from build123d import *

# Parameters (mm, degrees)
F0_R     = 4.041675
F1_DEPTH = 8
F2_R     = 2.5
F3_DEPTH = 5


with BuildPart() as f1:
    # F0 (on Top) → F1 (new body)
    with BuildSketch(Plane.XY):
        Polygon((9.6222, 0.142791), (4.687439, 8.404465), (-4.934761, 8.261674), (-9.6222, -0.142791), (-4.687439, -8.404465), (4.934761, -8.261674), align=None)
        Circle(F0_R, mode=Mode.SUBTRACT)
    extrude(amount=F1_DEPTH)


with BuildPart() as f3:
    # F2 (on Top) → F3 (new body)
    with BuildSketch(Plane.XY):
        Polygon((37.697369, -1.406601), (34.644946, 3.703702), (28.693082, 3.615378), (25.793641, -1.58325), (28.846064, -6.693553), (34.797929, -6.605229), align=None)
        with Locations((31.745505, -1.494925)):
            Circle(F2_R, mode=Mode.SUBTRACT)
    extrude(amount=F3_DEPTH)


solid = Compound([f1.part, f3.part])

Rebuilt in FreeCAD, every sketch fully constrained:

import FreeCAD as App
import Part
import Sketcher

doc = App.newDocument("Part")
body = doc.addObject("PartDesign::Body", "Body")

sketch1 = doc.addObject("Sketcher::SketchObject", "Sketch")
body.addObject(sketch1)
sketch1.AttachmentSupport = (doc.XY_Plane, [""])
sketch1.MapMode = "FlatFace"
sketch1.addGeometry([
    Part.LineSegment(App.Vector(9.6222, 0.142791, 0), App.Vector(4.687439, 8.404465, 0)),
    Part.LineSegment(App.Vector(4.687439, 8.404465, 0), App.Vector(-4.934761, 8.261674, 0)),
    Part.LineSegment(App.Vector(-4.934761, 8.261674, 0), App.Vector(-9.6222, -0.142791, 0)),
    Part.LineSegment(App.Vector(-9.6222, -0.142791, 0), App.Vector(-4.687439, -8.404465, 0)),
    Part.LineSegment(App.Vector(-4.687439, -8.404465, 0), App.Vector(4.934761, -8.261674, 0)),
    Part.LineSegment(App.Vector(4.934761, -8.261674, 0), App.Vector(9.6222, 0.142791, 0)),
    Part.Circle(App.Vector(0, 0, 0), App.Vector(0, 0, 1), 4.041675),
], False)
sketch1.addConstraint([
    Sketcher.Constraint("Coincident", 0, 2, 1, 1),
    Sketcher.Constraint("Coincident", 1, 2, 2, 1),
    Sketcher.Constraint("Coincident", 2, 2, 3, 1),
    Sketcher.Constraint("Coincident", 3, 2, 4, 1),
    Sketcher.Constraint("Coincident", 4, 2, 5, 1),
    Sketcher.Constraint("Coincident", 5, 2, 0, 1),
    Sketcher.Constraint("Coincident", 6, 3, -1, 1),
    Sketcher.Constraint("Symmetric", 0, 2, 3, 2, -1, 1),
    Sketcher.Constraint("Symmetric", 1, 2, 4, 2, -1, 1),
    Sketcher.Constraint("Symmetric", 2, 2, 5, 2, -1, 1),
    Sketcher.Constraint("Equal", 0, 1),
    Sketcher.Constraint("Equal", 1, 2),
    Sketcher.Constraint("Diameter", 6, 8.08335),
    Sketcher.Constraint("DistanceX", 2, 2, -1, 1, 9.6222),
    Sketcher.Constraint("DistanceX", 1, 2, 0, 2, 9.6222),
    Sketcher.Constraint("Distance", 0, 9.62326),
    Sketcher.Constraint("DistanceX", -1, 1, 0, 2, 4.687439),
])
pad1 = doc.addObject("PartDesign::Pad", "Pad")
body.addObject(pad1)
pad1.Profile = sketch1
pad1.Length = 8
body2 = doc.addObject("PartDesign::Body", "Body001")

sketch2 = doc.addObject("Sketcher::SketchObject", "Sketch001")
body2.addObject(sketch2)
sketch2.AttachmentSupport = (doc.getObject("XY_Plane001"), [""])
sketch2.MapMode = "FlatFace"
sketch2.addGeometry([
    Part.LineSegment(App.Vector(37.697369, -1.406601, 0), App.Vector(34.644946, 3.703702, 0)),
    Part.LineSegment(App.Vector(34.644946, 3.703702, 0), App.Vector(28.693082, 3.615378, 0)),
    Part.LineSegment(App.Vector(28.693082, 3.615378, 0), App.Vector(25.793641, -1.58325, 0)),
    Part.LineSegment(App.Vector(25.793641, -1.58325, 0), App.Vector(28.846064, -6.693553, 0)),
    Part.LineSegment(App.Vector(28.846064, -6.693553, 0), App.Vector(34.797929, -6.605229, 0)),
    Part.LineSegment(App.Vector(34.797929, -6.605229, 0), App.Vector(37.697369, -1.406601, 0)),
    Part.Circle(App.Vector(31.745505, -1.494925, 0), App.Vector(0, 0, 1), 2.5),
], False)
sketch2.addConstraint([
    Sketcher.Constraint("Coincident", 0, 2, 1, 1),
    Sketcher.Constraint("Coincident", 1, 2, 2, 1),
    Sketcher.Constraint("Coincident", 2, 2, 3, 1),
    Sketcher.Constraint("Coincident", 3, 2, 4, 1),
    Sketcher.Constraint("Coincident", 4, 2, 5, 1),
    Sketcher.Constraint("Coincident", 5, 2, 0, 1),
    Sketcher.Constraint("Parallel", 0, 3),
    Sketcher.Constraint("Parallel", 1, 4),
    Sketcher.Constraint("Parallel", 2, 5),
    Sketcher.Constraint("Equal", 0, 1),
    Sketcher.Constraint("Equal", 1, 2),
    Sketcher.Constraint("Equal", 2, 3),
    Sketcher.Constraint("Diameter", 6, 5.0),
    Sketcher.Constraint("DistanceY", -1, 1, 0, 2, 3.703702),
    Sketcher.Constraint("DistanceY", 5, 2, -1, 1, 1.406601),
    Sketcher.Constraint("Distance", 0, 5.952519),
    Sketcher.Constraint("DistanceY", -1, 1, 1, 2, 3.615378),
    Sketcher.Constraint("DistanceX", -1, 1, 2, 2, 25.793641),
    Sketcher.Constraint("DistanceY", 2, 2, -1, 1, 1.58325),
    Sketcher.Constraint("DistanceX", 6, 3, 0, 2, 2.899441),
    Sketcher.Constraint("DistanceY", 6, 3, -1, 1, 1.494925),
])
pad2 = doc.addObject("PartDesign::Pad", "Pad001")
body2.addObject(pad2)
pad2.Profile = sketch2
pad2.Length = 5

doc.recompute()
